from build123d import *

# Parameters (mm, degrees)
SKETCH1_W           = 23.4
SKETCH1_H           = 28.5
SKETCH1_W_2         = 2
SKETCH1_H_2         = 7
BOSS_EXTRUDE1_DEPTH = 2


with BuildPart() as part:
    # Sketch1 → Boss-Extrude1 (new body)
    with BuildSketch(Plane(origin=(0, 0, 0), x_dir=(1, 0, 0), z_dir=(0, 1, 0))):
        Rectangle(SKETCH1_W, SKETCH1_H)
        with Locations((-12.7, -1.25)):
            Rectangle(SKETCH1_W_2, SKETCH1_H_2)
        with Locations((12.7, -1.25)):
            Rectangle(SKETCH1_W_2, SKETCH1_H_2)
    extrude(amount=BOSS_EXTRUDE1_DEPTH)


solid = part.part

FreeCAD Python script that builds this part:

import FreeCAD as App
import Part
import Sketcher
from FreeCAD import Vector


def add_polygon(sketch, points):
    """Adds a closed chain of lines whose ends are joined by coincident constraints."""
    first, n = sketch.GeometryCount, len(points)
    for a, b in zip(points, points[1:] + points[:1]):
        sketch.addGeometry(Part.LineSegment(App.Vector(*a, 0), App.Vector(*b, 0)), False)
    for i in range(n):
        sketch.addConstraint(Sketcher.Constraint("Coincident", first + i, 2, first + (i + 1) % n, 1))

doc = App.newDocument("Part")
params = doc.addObject("Spreadsheet::Sheet", "Params")
for row, (alias, value) in enumerate([
    ("sketch1_width", "2 mm"),
    ("sketch1_height", "7 mm"),
    ("sketch1_height2", "12 mm"),
    ("sketch1_width2", "23.4 mm"),
    ("sketch1_height3", "9.5 mm"),
    ("pad1_length", "2 mm"),
], start=1):
    params.set(f"A{row}", alias)
    params.set(f"B{row}", "=" + value)
    params.setAlias(f"B{row}", alias)

body = doc.addObject("PartDesign::Body", "Body")

# Sketch on XZ plane
sketch1 = body.newObject("Sketcher::SketchObject", "Sketch")
sketch1.AttachmentSupport = (doc.getObject("XZ_Plane"), [""])
sketch1.MapMode = "FlatFace"
add_polygon(sketch1, [(-11.7, 4.8), (-11.7, 14.2), (11.7, 14.2), (11.7, 4.8), (13.7, 4.8), (13.7, -2.2), (11.7, -2.2), (11.7, -14.2), (-11.7, -14.2), (-11.7, -2.2), (-13.7, -2.2), (-13.7, 4.8)])  # lines 0-11
sketch1.addConstraint([
    Sketcher.Constraint("Vertical", 0),
    Sketcher.Constraint("Horizontal", 1),
    Sketcher.Constraint("Vertical", 2),
    Sketcher.Constraint("Horizontal", 3),
    Sketcher.Constraint("Vertical", 4),
    Sketcher.Constraint("Horizontal", 5),
    Sketcher.Constraint("Vertical", 6),
    Sketcher.Constraint("Horizontal", 7),
    Sketcher.Constraint("Vertical", 8),
    Sketcher.Constraint("Horizontal", 9),
    Sketcher.Constraint("Vertical", 10),
    Sketcher.Constraint("Horizontal", 11),
    Sketcher.Constraint("Symmetric", 0, 2, 6, 2, -1, 1),
    Sketcher.Constraint("Symmetric", 5, 2, 8, 2, -2),
    Sketcher.Constraint("Symmetric", 3, 2, 10, 2, -2),
    Sketcher.Constraint("Vertical", 2, 2, 5, 2),
    Sketcher.Constraint("DistanceX", 3, 1, 3, 2, 2.0),
    Sketcher.Constraint("DistanceY", 4, 2, 4, 1, 7.0),
    Sketcher.Constraint("DistanceY", 6, 2, 6, 1, 12.0),
    Sketcher.Constraint("DistanceX", 1, 1, 1, 2, 23.4),
    Sketcher.Constraint("DistanceY", 0, 1, 0, 2, 9.5),
])
sketch1.setExpression("Constraints[28]", "Params.sketch1_width")
sketch1.setExpression("Constraints[29]", "Params.sketch1_height")
sketch1.setExpression("Constraints[30]", "Params.sketch1_height2")
sketch1.setExpression("Constraints[31]", "Params.sketch1_width2")
sketch1.setExpression("Constraints[32]", "Params.sketch1_height3")
pad1 = body.newObject("PartDesign::Pad", "Pad")
pad1.Profile = sketch1
pad1.setExpression("Length", "Params.pad1_length")
pad1.Reversed = True

doc.recompute()
